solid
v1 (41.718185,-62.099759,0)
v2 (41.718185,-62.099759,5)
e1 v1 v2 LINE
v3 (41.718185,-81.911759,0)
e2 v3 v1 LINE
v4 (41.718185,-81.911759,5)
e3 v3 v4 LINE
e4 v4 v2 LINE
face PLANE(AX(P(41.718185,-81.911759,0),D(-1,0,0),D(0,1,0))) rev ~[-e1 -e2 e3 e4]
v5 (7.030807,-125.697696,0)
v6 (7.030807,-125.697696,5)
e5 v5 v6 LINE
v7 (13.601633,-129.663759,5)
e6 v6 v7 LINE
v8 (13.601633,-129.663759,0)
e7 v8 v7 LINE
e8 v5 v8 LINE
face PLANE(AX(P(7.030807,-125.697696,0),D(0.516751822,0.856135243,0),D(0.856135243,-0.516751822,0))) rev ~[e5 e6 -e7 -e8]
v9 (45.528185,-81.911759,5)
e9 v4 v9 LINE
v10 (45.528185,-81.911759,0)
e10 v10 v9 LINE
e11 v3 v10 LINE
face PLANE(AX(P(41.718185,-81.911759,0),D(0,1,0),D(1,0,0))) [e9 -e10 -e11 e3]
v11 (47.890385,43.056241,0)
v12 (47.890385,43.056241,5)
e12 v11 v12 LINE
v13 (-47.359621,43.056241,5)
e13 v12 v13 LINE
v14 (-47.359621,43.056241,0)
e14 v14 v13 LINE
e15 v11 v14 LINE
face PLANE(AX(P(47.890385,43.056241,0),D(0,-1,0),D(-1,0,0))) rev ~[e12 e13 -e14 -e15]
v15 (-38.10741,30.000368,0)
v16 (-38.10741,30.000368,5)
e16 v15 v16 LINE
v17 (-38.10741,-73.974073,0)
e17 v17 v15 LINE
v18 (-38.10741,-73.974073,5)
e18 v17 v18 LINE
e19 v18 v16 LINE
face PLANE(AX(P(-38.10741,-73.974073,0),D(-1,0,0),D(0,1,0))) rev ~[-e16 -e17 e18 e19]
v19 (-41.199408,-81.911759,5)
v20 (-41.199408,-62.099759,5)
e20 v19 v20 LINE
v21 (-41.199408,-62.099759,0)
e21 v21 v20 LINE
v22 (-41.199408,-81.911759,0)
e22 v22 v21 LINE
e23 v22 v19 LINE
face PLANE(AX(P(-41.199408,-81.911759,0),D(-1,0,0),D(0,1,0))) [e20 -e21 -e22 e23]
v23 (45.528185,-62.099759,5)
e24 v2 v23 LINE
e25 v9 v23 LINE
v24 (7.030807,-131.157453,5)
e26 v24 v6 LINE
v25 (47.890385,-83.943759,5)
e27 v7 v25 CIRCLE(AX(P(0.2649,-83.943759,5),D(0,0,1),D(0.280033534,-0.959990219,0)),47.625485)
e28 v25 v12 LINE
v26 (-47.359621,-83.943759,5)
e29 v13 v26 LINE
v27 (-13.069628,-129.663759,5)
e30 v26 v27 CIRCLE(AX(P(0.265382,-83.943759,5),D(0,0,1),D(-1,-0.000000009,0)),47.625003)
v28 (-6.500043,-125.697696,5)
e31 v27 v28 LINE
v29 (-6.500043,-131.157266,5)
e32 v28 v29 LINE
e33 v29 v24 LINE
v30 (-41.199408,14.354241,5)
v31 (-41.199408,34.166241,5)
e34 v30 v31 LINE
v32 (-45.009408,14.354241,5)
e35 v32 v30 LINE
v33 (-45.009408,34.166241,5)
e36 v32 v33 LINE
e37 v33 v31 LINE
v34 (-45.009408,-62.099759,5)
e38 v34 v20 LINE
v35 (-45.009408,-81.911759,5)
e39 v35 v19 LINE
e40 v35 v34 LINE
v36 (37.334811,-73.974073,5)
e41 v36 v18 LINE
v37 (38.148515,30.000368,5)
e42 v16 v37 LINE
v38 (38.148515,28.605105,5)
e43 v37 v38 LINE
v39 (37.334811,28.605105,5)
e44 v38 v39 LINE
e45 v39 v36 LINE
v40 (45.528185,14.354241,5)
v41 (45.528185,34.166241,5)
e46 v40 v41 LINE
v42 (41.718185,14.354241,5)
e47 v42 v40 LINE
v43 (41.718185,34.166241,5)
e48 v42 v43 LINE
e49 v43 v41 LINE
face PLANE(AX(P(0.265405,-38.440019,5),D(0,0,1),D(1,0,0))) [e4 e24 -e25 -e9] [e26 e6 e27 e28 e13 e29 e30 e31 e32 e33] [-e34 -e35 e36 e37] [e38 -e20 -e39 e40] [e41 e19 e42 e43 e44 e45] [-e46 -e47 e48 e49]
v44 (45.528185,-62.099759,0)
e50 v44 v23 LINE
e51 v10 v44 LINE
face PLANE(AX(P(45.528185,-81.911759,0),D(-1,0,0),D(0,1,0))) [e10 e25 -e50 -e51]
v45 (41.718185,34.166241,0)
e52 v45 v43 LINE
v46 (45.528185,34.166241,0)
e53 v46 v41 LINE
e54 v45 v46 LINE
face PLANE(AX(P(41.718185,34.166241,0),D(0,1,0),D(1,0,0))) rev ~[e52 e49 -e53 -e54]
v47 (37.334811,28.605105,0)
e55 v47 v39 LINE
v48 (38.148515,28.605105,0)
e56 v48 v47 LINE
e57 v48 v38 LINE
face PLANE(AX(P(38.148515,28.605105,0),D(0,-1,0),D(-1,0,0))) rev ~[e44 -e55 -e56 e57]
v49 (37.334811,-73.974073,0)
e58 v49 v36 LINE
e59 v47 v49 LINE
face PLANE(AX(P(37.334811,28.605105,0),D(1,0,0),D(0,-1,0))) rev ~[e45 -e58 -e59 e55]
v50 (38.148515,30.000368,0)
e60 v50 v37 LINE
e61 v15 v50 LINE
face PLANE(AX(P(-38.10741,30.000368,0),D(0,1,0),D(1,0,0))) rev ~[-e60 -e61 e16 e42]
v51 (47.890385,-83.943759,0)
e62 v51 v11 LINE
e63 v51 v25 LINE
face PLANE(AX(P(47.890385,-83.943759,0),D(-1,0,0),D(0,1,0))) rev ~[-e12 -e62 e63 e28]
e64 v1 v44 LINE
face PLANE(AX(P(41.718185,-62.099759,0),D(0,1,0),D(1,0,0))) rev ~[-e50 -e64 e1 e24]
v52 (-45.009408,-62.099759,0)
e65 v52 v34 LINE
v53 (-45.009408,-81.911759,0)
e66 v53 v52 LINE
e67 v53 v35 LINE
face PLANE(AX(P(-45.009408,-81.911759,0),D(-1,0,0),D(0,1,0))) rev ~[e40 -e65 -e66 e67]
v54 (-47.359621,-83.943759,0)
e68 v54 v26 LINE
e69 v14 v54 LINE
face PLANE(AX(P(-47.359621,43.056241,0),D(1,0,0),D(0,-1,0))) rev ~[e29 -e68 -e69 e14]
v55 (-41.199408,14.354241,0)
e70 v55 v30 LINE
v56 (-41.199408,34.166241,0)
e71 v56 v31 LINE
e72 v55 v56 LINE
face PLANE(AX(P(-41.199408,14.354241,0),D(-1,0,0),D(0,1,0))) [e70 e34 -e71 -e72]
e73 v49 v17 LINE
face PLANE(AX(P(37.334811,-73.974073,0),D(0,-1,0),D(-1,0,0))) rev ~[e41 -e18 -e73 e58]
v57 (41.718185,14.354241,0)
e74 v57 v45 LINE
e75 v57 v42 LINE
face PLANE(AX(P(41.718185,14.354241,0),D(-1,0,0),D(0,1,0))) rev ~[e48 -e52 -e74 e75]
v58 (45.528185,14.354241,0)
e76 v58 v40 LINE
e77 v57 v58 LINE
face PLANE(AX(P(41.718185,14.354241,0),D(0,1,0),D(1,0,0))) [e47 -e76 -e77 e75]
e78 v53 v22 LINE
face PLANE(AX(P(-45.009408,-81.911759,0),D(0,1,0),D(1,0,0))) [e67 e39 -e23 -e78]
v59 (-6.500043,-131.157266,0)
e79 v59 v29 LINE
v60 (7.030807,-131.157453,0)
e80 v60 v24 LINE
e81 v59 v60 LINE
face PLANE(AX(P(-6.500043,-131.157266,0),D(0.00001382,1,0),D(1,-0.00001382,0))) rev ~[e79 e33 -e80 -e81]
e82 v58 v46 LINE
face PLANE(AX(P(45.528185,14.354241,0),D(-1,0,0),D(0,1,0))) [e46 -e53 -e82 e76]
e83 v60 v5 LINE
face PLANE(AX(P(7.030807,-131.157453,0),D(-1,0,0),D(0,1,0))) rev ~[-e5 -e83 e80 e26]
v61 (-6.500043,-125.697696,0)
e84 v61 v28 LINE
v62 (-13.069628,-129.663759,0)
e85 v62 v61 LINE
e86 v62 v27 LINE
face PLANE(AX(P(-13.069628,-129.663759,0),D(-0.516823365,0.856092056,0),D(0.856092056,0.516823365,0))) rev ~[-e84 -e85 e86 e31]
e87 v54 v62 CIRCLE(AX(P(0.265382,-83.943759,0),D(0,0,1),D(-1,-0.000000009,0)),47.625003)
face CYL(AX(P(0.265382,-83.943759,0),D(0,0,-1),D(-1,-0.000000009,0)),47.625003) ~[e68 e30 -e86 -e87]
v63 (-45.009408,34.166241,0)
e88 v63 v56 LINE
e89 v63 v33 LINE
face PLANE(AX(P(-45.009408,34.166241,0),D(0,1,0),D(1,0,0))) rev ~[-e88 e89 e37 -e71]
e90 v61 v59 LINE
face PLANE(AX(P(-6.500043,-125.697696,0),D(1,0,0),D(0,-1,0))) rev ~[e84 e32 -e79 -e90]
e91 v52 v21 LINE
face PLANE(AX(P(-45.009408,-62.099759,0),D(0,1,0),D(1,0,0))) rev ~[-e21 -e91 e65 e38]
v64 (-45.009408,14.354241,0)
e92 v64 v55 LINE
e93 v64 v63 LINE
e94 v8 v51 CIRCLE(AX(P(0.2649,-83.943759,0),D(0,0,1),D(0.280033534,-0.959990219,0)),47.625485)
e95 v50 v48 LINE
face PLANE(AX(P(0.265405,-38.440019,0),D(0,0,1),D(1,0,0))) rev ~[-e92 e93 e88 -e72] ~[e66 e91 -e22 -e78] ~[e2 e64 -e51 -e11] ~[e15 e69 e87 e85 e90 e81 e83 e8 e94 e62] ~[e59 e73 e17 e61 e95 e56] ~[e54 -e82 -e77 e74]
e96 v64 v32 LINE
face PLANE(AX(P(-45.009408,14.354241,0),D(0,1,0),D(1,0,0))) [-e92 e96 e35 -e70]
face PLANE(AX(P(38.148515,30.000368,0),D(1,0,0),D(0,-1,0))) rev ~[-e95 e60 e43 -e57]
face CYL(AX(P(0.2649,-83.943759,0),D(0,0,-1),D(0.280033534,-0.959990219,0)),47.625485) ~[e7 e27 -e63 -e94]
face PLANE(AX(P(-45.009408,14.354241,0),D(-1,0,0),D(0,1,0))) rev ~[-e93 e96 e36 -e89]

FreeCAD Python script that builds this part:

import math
import FreeCAD as App
import Part
import Sketcher
from FreeCAD import Vector
Q = App.Units.Quantity


def add_polygon(sketch, points):
    """Adds a closed chain of lines whose ends are joined by coincident constraints."""
    first, n = sketch.GeometryCount, len(points)
    for a, b in zip(points, points[1:] + points[:1]):
        sketch.addGeometry(Part.LineSegment(App.Vector(*a, 0), App.Vector(*b, 0)), False)
    for i in range(n):
        sketch.addConstraint(Sketcher.Constraint("Coincident", first + i, 2, first + (i + 1) % n, 1))

doc = App.newDocument("Part")
body = doc.addObject("PartDesign::Body", "Body")

# Sketch on XY plane
sketch1 = doc.addObject("Sketcher::SketchObject", "Sketch")
body.addObject(sketch1)
sketch1.AttachmentSupport = (doc.XY_Plane, [""])
sketch1.MapMode = "FlatFace"
sketch1.addGeometry(Part.LineSegment(Vector(47.890385, 43.056241, 0), Vector(-47.359621, 43.056241, 0)), False)  # 0
sketch1.addGeometry(Part.LineSegment(Vector(-47.359621, 43.056241, 0), Vector(-47.359621, -83.943759, 0)), False)  # 1
sketch1.addGeometry(Part.ArcOfCircle(Part.Circle(Vector(0.265382, -83.943759, 0), Vector(0, 0, 1), 47.625003), math.radians(-179.999999), math.radians(-106.260216)), False)  # 2
sketch1.addGeometry(Part.LineSegment(Vector(-13.069628, -129.663759, 0), Vector(-6.500043, -125.697696, 0)), False)  # 3
sketch1.addGeometry(Part.LineSegment(Vector(-6.500043, -125.697696, 0), Vector(-6.500043, -131.157266, 0)), False)  # 4
sketch1.addGeometry(Part.LineSegment(Vector(-6.500043, -131.157266, 0), Vector(7.030807, -131.157453, 0)), False)  # 5
sketch1.addGeometry(Part.LineSegment(Vector(7.030807, -131.157453, 0), Vector(7.030807, -125.697696, 0)), False)  # 6
sketch1.addGeometry(Part.LineSegment(Vector(7.030807, -125.697696, 0), Vector(13.601633, -129.663759, 0)), False)  # 7
sketch1.addGeometry(Part.ArcOfCircle(Part.Circle(Vector(0.2649, -83.943759, 0), Vector(0, 0, 1), 47.625485), math.radians(-73.737794), math.radians(0)), False)  # 8
sketch1.addGeometry(Part.LineSegment(Vector(47.890385, -83.943759, 0), Vector(47.890385, 43.056241, 0)), False)  # 9
add_polygon(sketch1, [(-41.199408, -81.911759), (-45.009408, -81.911759), (-45.009408, -62.099759), (-41.199408, -62.099759)])  # lines 10-13
add_polygon(sketch1, [(45.528185, -81.911759), (41.718185, -81.911759), (41.718185, -62.099759), (45.528185, -62.099759)])  # lines 14-17
add_polygon(sketch1, [(-38.10741, -73.974073), (-38.10741, 30.000368), (38.148515, 30.000368), (38.148515, 28.605105), (37.334811, 28.605105), (37.334811, -73.974073)])  # lines 18-23
add_polygon(sketch1, [(-41.199408, 14.354241), (-45.009408, 14.354241), (-45.009408, 34.166241), (-41.199408, 34.166241)])  # lines 24-27
add_polygon(sketch1, [(45.528185, 14.354241), (41.718185, 14.354241), (41.718185, 34.166241), (45.528185, 34.166241)])  # lines 28-31
sketch1.addConstraint([
    Sketcher.Constraint("Coincident", 0, 2, 1, 1),
    Sketcher.Constraint("Tangent", 1, 2, 2, 1),
    Sketcher.Constraint("Coincident", 2, 2, 3, 1),
    Sketcher.Constraint("Coincident", 3, 2, 4, 1),
    Sketcher.Constraint("Coincident", 4, 2, 5, 1),
    Sketcher.Constraint("Coincident", 5, 2, 6, 1),
    Sketcher.Constraint("Coincident", 6, 2, 7, 1),
    Sketcher.Constraint("Coincident", 7, 2, 8, 1),
    Sketcher.Constraint("Tangent", 8, 2, 9, 1),
    Sketcher.Constraint("Coincident", 9, 2, 0, 1),
    Sketcher.Constraint("Horizontal", 0),
    Sketcher.Constraint("Vertical", 1),
    Sketcher.Constraint("Vertical", 4),
    Sketcher.Constraint("Vertical", 6),
    Sketcher.Constraint("Vertical", 9),
    Sketcher.Constraint("Horizontal", 10),
    Sketcher.Constraint("Vertical", 11),
    Sketcher.Constraint("Horizontal", 12),
    Sketcher.Constraint("Vertical", 13),
    Sketcher.Constraint("Horizontal", 14),
    Sketcher.Constraint("Vertical", 15),
    Sketcher.Constraint("Horizontal", 16),
    Sketcher.Constraint("Vertical", 17),
    Sketcher.Constraint("Vertical", 18),
    Sketcher.Constraint("Horizontal", 19),
    Sketcher.Constraint("Vertical", 20),
    Sketcher.Constraint("Horizontal", 21),
    Sketcher.Constraint("Vertical", 22),
    Sketcher.Constraint("Horizontal", 23),
    Sketcher.Constraint("Horizontal", 24),
    Sketcher.Constraint("Vertical", 25),
    Sketcher.Constraint("Horizontal", 26),
    Sketcher.Constraint("Vertical", 27),
    Sketcher.Constraint("Horizontal", 28),
    Sketcher.Constraint("Vertical", 29),
    Sketcher.Constraint("Horizontal", 30),
    Sketcher.Constraint("Vertical", 31),
    Sketcher.Constraint("Horizontal", 2, 3, 8, 3),
    Sketcher.Constraint("Horizontal", 3, 2, 6, 2),
    Sketcher.Constraint("Horizontal", 2, 2, 7, 2),
    Sketcher.Constraint("Horizontal", 13, 2, 14, 2),
    Sketcher.Constraint("Horizontal", 12, 2, 15, 2),
    Sketcher.Constraint("Horizontal", 27, 2, 28, 2),
    Sketcher.Constraint("Horizontal", 26, 2, 29, 2),
    Sketcher.Constraint("Vertical", 11, 2, 24, 2),
    Sketcher.Constraint("Vertical", 13, 2, 26, 2),
    Sketcher.Constraint("Vertical", 15, 2, 28, 2),
    Sketcher.Constraint("Vertical", 17, 2, 30, 2),
    Sketcher.Constraint("Equal", 12, 14),
    Sketcher.Constraint("Equal", 17, 25),
    Sketcher.Constraint("DistanceY", 1, 2, 1, 1, Q("5 in")),
    Sketcher.Constraint("Radius", 2, Q("1.8750001 in")),
    Sketcher.Constraint("DistanceX", 10, 2, 10, 1, Q("0.15 in")),
    Sketcher.Constraint("DistanceY", 11, 1, 11, 2, Q("0.78 in")),
    Sketcher.Constraint("DistanceY", 2, 2, 8, 3, Q("1.8 in")),
    Sketcher.Constraint("DistanceY", 1, 2, 10, 2, Q("0.08 in")),
    Sketcher.Constraint("DistanceY", 24, 2, 0, 2, Q("1.13 in")),
    Sketcher.Constraint("DistanceX", 2, 3, 8, 2, Q("1.8750001 in")),
    Sketcher.Constraint("DistanceX", 14, 2, 8, 2, Q("0.243 in")),
    Sketcher.Constraint("Radius", 8, Q("47.625485 mm")),
    Sketcher.Constraint("DistanceX", 23, 2, 23, 1, Q("75.442221 mm")),
    Sketcher.Constraint("DistanceY", 4, 2, 4, 1, Q("5.45957 mm")),
    Sketcher.Constraint("DistanceY", 18, 1, 18, 2, Q("103.974441 mm")),
    Sketcher.Constraint("DistanceY", 22, 2, 22, 1, Q("102.579178 mm")),
    Sketcher.Constraint("DistanceX", -1, 1, 8, 3, Q("0.2649 mm")),
    Sketcher.Constraint("Distance", 5, Q("13.53085 mm")),
    Sketcher.Constraint("DistanceX", 19, 1, 19, 2, Q("76.255925 mm")),
    Sketcher.Constraint("DistanceY", 6, 1, 6, 2, Q("5.459757 mm")),
    Sketcher.Constraint("DistanceY", 2, 3, -1, 1, Q("83.943759 mm")),
    Sketcher.Constraint("DistanceX", 18, 2, -1, 1, Q("38.10741 mm")),
    Sketcher.Constraint("DistanceY", -1, 1, 18, 2, Q("30.000368 mm")),
    Sketcher.Constraint("DistanceX", 10, 2, 8, 3, Q("45.274308 mm")),
    Sketcher.Constraint("Distance", 3, Q("7.673924 mm")),
    Sketcher.Constraint("Distance", 7, Q("7.674986 mm")),
])
pad1 = doc.addObject("PartDesign::Pad", "Pad")
body.addObject(pad1)
pad1.Profile = sketch1
pad1.Length = 5

doc.recompute()
